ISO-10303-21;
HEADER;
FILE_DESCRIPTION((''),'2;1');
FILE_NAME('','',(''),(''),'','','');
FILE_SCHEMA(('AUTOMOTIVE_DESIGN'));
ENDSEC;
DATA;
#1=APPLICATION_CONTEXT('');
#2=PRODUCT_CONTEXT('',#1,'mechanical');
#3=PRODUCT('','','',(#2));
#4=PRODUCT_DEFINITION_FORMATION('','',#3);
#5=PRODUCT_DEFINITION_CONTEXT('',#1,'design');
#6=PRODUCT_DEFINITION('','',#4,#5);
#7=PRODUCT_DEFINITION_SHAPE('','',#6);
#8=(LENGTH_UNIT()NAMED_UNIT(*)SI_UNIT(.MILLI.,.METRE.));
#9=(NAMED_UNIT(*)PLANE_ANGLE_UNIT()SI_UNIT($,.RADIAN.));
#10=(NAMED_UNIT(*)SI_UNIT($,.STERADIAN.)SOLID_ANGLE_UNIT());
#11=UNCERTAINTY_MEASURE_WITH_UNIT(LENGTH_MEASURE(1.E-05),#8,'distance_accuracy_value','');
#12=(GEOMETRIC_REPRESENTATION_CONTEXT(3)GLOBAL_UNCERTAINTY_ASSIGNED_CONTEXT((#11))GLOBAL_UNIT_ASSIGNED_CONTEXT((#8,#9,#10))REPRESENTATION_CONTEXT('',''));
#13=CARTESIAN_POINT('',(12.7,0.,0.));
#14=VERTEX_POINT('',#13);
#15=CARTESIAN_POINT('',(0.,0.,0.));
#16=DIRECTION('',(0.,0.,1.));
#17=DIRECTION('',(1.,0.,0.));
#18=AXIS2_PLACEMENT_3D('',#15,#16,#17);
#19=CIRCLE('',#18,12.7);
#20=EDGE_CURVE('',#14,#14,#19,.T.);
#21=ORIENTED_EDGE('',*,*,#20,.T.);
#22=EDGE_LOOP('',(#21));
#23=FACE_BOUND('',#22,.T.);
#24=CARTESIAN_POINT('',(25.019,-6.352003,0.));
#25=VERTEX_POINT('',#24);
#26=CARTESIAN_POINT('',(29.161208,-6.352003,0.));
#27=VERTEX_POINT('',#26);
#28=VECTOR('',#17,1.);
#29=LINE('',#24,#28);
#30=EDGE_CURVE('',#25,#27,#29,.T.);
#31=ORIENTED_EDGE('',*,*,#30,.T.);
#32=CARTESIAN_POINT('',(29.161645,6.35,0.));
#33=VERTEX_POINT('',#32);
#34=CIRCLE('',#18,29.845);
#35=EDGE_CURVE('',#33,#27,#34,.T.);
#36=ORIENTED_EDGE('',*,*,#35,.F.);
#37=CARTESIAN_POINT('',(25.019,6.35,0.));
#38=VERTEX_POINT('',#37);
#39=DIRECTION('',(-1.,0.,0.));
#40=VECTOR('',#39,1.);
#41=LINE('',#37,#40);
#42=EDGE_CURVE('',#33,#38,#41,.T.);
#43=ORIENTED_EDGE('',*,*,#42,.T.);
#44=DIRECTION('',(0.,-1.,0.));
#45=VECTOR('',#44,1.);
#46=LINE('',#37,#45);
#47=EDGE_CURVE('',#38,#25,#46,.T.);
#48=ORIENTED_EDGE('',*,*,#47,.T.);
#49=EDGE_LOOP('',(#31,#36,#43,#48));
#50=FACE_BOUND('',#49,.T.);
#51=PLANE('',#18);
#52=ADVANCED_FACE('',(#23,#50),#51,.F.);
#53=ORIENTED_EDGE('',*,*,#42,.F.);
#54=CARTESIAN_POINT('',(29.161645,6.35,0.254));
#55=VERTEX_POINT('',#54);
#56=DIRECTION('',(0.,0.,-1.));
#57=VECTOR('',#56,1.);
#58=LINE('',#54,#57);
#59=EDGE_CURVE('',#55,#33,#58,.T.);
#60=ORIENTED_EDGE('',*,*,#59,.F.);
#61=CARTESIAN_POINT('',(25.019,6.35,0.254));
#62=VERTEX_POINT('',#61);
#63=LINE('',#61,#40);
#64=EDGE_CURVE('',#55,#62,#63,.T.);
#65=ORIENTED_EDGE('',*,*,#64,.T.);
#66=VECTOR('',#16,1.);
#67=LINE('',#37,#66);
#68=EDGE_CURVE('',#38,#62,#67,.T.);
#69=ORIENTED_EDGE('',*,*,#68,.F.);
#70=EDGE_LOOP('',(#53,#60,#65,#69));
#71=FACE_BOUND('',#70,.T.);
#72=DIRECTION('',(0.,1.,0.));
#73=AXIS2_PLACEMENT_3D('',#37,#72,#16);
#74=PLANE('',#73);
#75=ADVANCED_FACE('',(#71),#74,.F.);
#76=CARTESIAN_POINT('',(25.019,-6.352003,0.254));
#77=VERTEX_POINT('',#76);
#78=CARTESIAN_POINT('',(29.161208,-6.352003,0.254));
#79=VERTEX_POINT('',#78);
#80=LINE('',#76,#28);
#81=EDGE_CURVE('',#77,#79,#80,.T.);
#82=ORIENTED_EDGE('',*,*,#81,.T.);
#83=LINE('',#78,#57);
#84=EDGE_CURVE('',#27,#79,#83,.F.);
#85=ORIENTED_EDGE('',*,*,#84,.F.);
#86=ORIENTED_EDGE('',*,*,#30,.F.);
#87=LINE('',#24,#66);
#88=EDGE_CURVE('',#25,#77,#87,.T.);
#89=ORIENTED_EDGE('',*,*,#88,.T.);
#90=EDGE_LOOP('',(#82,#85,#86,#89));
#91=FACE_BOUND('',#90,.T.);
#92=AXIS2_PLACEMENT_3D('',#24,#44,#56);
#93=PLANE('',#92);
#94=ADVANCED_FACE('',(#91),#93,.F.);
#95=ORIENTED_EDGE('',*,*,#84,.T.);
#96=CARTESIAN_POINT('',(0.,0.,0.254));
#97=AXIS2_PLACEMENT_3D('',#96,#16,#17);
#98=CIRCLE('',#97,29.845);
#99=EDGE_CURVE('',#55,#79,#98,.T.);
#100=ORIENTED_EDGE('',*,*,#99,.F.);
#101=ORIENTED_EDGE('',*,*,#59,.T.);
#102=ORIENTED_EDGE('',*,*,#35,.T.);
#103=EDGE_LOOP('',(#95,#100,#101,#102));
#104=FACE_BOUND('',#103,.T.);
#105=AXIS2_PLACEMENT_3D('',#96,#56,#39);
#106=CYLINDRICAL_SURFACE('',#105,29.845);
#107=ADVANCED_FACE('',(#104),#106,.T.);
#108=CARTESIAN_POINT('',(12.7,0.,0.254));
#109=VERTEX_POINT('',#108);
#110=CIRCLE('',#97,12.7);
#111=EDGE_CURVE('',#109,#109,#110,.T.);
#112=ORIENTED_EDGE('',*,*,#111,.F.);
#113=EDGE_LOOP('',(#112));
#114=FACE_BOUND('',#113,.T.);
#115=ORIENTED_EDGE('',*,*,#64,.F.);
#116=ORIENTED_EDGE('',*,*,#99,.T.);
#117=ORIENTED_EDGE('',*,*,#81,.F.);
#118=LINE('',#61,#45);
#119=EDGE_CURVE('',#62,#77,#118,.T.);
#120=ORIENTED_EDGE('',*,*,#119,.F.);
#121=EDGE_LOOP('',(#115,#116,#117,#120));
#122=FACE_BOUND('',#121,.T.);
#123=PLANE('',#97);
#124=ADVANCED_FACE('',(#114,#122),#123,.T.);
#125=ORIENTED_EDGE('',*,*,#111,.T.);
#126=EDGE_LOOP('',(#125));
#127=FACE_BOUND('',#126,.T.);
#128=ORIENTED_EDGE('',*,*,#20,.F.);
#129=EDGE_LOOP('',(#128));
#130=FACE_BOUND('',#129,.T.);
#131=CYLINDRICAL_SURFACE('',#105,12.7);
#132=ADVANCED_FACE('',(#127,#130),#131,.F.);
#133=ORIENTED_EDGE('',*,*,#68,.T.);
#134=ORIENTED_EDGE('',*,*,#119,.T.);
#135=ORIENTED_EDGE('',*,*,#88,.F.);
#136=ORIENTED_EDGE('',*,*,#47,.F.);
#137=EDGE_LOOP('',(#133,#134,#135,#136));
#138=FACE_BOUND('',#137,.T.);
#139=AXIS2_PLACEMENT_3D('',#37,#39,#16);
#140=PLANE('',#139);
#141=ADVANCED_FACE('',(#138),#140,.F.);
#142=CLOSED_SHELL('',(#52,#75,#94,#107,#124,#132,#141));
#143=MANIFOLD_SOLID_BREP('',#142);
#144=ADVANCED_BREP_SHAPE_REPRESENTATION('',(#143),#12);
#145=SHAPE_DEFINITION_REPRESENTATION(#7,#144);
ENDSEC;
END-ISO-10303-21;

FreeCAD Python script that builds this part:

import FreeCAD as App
import Part
import Sketcher
Q = App.Units.Quantity

doc = App.newDocument("Part")
body = doc.addObject("PartDesign::Body", "Body")

sketch1 = body.newObject("Sketcher::SketchObject", "Sketch")
sketch1.AttachmentSupport = (doc.getObject("XY_Plane"), [""])
sketch1.MapMode = "FlatFace"
sketch1.addGeometry(Part.Circle(App.Vector(0, 0, 0), App.Vector(0, 0, 1), 30), False)
sketch1.addGeometry(Part.Circle(App.Vector(0, 0, 0), App.Vector(0, 0, 1), 13), False)
sketch1.addConstraint(Sketcher.Constraint("Coincident", 0, 3, -1, 1))
sketch1.addConstraint(Sketcher.Constraint("Coincident", 1, 3, -1, 1))
sketch1.addConstraint(Sketcher.Constraint("Diameter", 1, Q("1 in")))
sketch1.addConstraint(Sketcher.Constraint("Diameter", 0, Q("2.35 in")))
pad1 = body.newObject("PartDesign::Pad", "Pad")
pad1.Profile = sketch1
pad1.Length = Q("0.01 in")

sketch2 = body.newObject("Sketcher::SketchObject", "Sketch001")
sketch2.AttachmentSupport = (doc.getObject("XY_Plane"), [""])
sketch2.MapMode = "FlatFace"
sketch2.AttachmentOffset = App.Placement(App.Vector(0, 0, 0.01 * 25.4), App.Rotation())
sketch2.addGeometry(Part.LineSegment(App.Vector(25, 6, 0), App.Vector(25, -6, 0)), False)
sketch2.addGeometry(Part.LineSegment(App.Vector(25, -6, 0), App.Vector(32, -6, 0)), False)
sketch2.addGeometry(Part.LineSegment(App.Vector(32, -6, 0), App.Vector(32, 6, 0)), False)
sketch2.addGeometry(Part.LineSegment(App.Vector(32, 6, 0), App.Vector(25, 6, 0)), False)
sketch2.addConstraint(Sketcher.Constraint("Coincident", 0, 2, 1, 1))
sketch2.addConstraint(Sketcher.Constraint("Coincident", 1, 2, 2, 1))
sketch2.addConstraint(Sketcher.Constraint("Coincident", 2, 2, 3, 1))
sketch2.addConstraint(Sketcher.Constraint("Coincident", 3, 2, 0, 1))
sketch2.addConstraint(Sketcher.Constraint("Vertical", 0))
sketch2.addConstraint(Sketcher.Constraint("Horizontal", 1))
sketch2.addConstraint(Sketcher.Constraint("Vertical", 2))
sketch2.addConstraint(Sketcher.Constraint("Horizontal", 3))
sketch2.addConstraint(Sketcher.Constraint("DistanceY", -1, 1, 2, 2, Q("0.25 in")))
sketch2.addConstraint(Sketcher.Constraint("DistanceX", -1, 1, 0, 2, Q("0.985 in")))
sketch2.addConstraint(Sketcher.Constraint("DistanceX", 1, 1, 1, 2, Q("6.745191 mm")))
sketch2.addConstraint(Sketcher.Constraint("DistanceY", 0, 2, 0, 1, Q("12.702003 mm")))
pocket1 = body.newObject("PartDesign::Pocket", "Pocket")
pocket1.Profile = sketch2
pocket1.Type = "ThroughAll"

doc.recompute()
